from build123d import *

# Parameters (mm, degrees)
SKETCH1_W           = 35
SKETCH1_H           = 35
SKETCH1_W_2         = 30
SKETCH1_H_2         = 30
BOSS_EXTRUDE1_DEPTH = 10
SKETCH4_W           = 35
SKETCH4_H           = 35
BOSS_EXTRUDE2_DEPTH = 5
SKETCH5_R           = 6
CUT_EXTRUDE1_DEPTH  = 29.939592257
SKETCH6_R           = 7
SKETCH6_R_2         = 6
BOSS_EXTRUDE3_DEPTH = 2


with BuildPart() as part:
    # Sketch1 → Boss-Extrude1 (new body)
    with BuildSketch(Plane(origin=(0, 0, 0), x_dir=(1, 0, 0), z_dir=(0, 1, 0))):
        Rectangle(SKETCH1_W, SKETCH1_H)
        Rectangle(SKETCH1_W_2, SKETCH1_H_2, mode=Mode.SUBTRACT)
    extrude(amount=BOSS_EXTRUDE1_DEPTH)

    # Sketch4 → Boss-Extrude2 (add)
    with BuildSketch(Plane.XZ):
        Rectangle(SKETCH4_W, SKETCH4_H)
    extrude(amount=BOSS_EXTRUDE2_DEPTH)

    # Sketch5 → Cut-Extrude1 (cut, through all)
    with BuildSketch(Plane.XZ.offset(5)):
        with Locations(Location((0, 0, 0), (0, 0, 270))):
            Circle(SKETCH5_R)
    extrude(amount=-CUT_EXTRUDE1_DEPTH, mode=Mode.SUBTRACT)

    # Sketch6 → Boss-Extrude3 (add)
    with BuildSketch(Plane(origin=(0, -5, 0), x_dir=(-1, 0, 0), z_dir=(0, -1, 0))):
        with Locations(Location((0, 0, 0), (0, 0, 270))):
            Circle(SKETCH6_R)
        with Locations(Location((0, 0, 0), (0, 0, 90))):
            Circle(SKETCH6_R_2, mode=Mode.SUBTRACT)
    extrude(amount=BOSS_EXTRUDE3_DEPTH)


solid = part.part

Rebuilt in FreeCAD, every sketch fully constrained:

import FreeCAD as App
import Part
import Sketcher
Q = App.Units.Quantity


def add_polygon(sketch, points):
    """Adds a closed chain of lines whose ends are joined by coincident constraints."""
    first, n = sketch.GeometryCount, len(points)
    for a, b in zip(points, points[1:] + points[:1]):
        sketch.addGeometry(Part.LineSegment(App.Vector(*a, 0), App.Vector(*b, 0)), False)
    for i in range(n):
        sketch.addConstraint(Sketcher.Constraint("Coincident", first + i, 2, first + (i + 1) % n, 1))

doc = App.newDocument("Part")
body = doc.addObject("PartDesign::Body", "Body")

# Sketch on XZ plane
sketch1 = body.newObject("Sketcher::SketchObject", "Sketch")
sketch1.AttachmentSupport = (doc.getObject("XZ_Plane"), [""])
sketch1.MapMode = "FlatFace"
add_polygon(sketch1, [(-17.5, -17.5), (-17.5, 17.5), (17.5, 17.5), (17.5, -17.5)])  # lines 0-3
add_polygon(sketch1, [(15, 15), (-15, 15), (-15, -15), (15, -15)])  # lines 4-7
sketch1.addConstraint([
    Sketcher.Constraint("Vertical", 0),
    Sketcher.Constraint("Horizontal", 1),
    Sketcher.Constraint("Vertical", 2),
    Sketcher.Constraint("Horizontal", 3),
    Sketcher.Constraint("Horizontal", 4),
    Sketcher.Constraint("Vertical", 5),
    Sketcher.Constraint("Horizontal", 6),
    Sketcher.Constraint("Vertical", 7),
    Sketcher.Constraint("Symmetric", 0, 2, 2, 2, -1, 1),
    Sketcher.Constraint("Symmetric", 4, 2, 6, 2, -1, 1),
    Sketcher.Constraint("Equal", 3, 0),
    Sketcher.Constraint("Equal", 6, 5),
    Sketcher.Constraint("DistanceX", 1, 1, 1, 2, Q("35 mm")),
    Sketcher.Constraint("DistanceX", 4, 2, 4, 1, Q("30 mm")),
])
pad1 = body.newObject("PartDesign::Pad", "Pad")
pad1.Profile = sketch1
pad1.Length = 10
pad1.Reversed = True

# Sketch on XZ plane
sketch2 = body.newObject("Sketcher::SketchObject", "Sketch001")
sketch2.AttachmentSupport = (doc.getObject("XZ_Plane"), [""])
sketch2.MapMode = "FlatFace"
add_polygon(sketch2, [(-17.5, 17.5), (-17.5, -17.5), (17.5, -17.5), (17.5, 17.5)])  # lines 0-3
sketch2.addConstraint([
    Sketcher.Constraint("Vertical", 0),
    Sketcher.Constraint("Horizontal", 1),
    Sketcher.Constraint("Vertical", 2),
    Sketcher.Constraint("Horizontal", 3),
    Sketcher.Constraint("Symmetric", 0, 2, 2, 2, -1, 1),
    Sketcher.Constraint("Equal", 3, 0),
    Sketcher.Constraint("DistanceX", 1, 1, 1, 2, Q("35 mm")),
])
pad2 = body.newObject("PartDesign::Pad", "Pad001")
pad2.Profile = sketch2
pad2.Length = 5

# Sketch on XZ plane
sketch3 = body.newObject("Sketcher::SketchObject", "Sketch002")
sketch3.AttachmentSupport = (doc.getObject("XZ_Plane"), [""])
sketch3.MapMode = "FlatFace"
sketch3.AttachmentOffset = App.Placement(App.Vector(0, 0, 5), App.Rotation())
sketch3.addGeometry(Part.Circle(App.Vector(0, 0, 0), App.Vector(0, 0, 1), 6), False)
sketch3.addConstraint([
    Sketcher.Constraint("Coincident", 0, 3, -1, 1),
    Sketcher.Constraint("Diameter", 0, Q("12 mm")),
])
pocket1 = body.newObject("PartDesign::Pocket", "Pocket")
pocket1.Profile = sketch3
pocket1.Type = "ThroughAll"

# Sketch on XZ plane
sketch4 = body.newObject("Sketcher::SketchObject", "Sketch003")
sketch4.AttachmentSupport = (doc.getObject("XZ_Plane"), [""])
sketch4.MapMode = "FlatFace"
sketch4.AttachmentOffset = App.Placement(App.Vector(0, 0, 5), App.Rotation())
sketch4.addGeometry([
    Part.Circle(App.Vector(0, 0, 0), App.Vector(0, 0, 1), 7),
    Part.Circle(App.Vector(0, 0, 0), App.Vector(0, 0, 1), 6),
], False)
sketch4.addConstraint([
    Sketcher.Constraint("Coincident", 0, 3, -1, 1),
    Sketcher.Constraint("Coincident", 1, 3, -1, 1),
    Sketcher.Constraint("Diameter", 0, Q("14 mm")),
    Sketcher.Constraint("Diameter", 1, Q("12 mm")),
])
pad3 = body.newObject("PartDesign::Pad", "Pad002")
pad3.Profile = sketch4
pad3.Length = 2

doc.recompute()
